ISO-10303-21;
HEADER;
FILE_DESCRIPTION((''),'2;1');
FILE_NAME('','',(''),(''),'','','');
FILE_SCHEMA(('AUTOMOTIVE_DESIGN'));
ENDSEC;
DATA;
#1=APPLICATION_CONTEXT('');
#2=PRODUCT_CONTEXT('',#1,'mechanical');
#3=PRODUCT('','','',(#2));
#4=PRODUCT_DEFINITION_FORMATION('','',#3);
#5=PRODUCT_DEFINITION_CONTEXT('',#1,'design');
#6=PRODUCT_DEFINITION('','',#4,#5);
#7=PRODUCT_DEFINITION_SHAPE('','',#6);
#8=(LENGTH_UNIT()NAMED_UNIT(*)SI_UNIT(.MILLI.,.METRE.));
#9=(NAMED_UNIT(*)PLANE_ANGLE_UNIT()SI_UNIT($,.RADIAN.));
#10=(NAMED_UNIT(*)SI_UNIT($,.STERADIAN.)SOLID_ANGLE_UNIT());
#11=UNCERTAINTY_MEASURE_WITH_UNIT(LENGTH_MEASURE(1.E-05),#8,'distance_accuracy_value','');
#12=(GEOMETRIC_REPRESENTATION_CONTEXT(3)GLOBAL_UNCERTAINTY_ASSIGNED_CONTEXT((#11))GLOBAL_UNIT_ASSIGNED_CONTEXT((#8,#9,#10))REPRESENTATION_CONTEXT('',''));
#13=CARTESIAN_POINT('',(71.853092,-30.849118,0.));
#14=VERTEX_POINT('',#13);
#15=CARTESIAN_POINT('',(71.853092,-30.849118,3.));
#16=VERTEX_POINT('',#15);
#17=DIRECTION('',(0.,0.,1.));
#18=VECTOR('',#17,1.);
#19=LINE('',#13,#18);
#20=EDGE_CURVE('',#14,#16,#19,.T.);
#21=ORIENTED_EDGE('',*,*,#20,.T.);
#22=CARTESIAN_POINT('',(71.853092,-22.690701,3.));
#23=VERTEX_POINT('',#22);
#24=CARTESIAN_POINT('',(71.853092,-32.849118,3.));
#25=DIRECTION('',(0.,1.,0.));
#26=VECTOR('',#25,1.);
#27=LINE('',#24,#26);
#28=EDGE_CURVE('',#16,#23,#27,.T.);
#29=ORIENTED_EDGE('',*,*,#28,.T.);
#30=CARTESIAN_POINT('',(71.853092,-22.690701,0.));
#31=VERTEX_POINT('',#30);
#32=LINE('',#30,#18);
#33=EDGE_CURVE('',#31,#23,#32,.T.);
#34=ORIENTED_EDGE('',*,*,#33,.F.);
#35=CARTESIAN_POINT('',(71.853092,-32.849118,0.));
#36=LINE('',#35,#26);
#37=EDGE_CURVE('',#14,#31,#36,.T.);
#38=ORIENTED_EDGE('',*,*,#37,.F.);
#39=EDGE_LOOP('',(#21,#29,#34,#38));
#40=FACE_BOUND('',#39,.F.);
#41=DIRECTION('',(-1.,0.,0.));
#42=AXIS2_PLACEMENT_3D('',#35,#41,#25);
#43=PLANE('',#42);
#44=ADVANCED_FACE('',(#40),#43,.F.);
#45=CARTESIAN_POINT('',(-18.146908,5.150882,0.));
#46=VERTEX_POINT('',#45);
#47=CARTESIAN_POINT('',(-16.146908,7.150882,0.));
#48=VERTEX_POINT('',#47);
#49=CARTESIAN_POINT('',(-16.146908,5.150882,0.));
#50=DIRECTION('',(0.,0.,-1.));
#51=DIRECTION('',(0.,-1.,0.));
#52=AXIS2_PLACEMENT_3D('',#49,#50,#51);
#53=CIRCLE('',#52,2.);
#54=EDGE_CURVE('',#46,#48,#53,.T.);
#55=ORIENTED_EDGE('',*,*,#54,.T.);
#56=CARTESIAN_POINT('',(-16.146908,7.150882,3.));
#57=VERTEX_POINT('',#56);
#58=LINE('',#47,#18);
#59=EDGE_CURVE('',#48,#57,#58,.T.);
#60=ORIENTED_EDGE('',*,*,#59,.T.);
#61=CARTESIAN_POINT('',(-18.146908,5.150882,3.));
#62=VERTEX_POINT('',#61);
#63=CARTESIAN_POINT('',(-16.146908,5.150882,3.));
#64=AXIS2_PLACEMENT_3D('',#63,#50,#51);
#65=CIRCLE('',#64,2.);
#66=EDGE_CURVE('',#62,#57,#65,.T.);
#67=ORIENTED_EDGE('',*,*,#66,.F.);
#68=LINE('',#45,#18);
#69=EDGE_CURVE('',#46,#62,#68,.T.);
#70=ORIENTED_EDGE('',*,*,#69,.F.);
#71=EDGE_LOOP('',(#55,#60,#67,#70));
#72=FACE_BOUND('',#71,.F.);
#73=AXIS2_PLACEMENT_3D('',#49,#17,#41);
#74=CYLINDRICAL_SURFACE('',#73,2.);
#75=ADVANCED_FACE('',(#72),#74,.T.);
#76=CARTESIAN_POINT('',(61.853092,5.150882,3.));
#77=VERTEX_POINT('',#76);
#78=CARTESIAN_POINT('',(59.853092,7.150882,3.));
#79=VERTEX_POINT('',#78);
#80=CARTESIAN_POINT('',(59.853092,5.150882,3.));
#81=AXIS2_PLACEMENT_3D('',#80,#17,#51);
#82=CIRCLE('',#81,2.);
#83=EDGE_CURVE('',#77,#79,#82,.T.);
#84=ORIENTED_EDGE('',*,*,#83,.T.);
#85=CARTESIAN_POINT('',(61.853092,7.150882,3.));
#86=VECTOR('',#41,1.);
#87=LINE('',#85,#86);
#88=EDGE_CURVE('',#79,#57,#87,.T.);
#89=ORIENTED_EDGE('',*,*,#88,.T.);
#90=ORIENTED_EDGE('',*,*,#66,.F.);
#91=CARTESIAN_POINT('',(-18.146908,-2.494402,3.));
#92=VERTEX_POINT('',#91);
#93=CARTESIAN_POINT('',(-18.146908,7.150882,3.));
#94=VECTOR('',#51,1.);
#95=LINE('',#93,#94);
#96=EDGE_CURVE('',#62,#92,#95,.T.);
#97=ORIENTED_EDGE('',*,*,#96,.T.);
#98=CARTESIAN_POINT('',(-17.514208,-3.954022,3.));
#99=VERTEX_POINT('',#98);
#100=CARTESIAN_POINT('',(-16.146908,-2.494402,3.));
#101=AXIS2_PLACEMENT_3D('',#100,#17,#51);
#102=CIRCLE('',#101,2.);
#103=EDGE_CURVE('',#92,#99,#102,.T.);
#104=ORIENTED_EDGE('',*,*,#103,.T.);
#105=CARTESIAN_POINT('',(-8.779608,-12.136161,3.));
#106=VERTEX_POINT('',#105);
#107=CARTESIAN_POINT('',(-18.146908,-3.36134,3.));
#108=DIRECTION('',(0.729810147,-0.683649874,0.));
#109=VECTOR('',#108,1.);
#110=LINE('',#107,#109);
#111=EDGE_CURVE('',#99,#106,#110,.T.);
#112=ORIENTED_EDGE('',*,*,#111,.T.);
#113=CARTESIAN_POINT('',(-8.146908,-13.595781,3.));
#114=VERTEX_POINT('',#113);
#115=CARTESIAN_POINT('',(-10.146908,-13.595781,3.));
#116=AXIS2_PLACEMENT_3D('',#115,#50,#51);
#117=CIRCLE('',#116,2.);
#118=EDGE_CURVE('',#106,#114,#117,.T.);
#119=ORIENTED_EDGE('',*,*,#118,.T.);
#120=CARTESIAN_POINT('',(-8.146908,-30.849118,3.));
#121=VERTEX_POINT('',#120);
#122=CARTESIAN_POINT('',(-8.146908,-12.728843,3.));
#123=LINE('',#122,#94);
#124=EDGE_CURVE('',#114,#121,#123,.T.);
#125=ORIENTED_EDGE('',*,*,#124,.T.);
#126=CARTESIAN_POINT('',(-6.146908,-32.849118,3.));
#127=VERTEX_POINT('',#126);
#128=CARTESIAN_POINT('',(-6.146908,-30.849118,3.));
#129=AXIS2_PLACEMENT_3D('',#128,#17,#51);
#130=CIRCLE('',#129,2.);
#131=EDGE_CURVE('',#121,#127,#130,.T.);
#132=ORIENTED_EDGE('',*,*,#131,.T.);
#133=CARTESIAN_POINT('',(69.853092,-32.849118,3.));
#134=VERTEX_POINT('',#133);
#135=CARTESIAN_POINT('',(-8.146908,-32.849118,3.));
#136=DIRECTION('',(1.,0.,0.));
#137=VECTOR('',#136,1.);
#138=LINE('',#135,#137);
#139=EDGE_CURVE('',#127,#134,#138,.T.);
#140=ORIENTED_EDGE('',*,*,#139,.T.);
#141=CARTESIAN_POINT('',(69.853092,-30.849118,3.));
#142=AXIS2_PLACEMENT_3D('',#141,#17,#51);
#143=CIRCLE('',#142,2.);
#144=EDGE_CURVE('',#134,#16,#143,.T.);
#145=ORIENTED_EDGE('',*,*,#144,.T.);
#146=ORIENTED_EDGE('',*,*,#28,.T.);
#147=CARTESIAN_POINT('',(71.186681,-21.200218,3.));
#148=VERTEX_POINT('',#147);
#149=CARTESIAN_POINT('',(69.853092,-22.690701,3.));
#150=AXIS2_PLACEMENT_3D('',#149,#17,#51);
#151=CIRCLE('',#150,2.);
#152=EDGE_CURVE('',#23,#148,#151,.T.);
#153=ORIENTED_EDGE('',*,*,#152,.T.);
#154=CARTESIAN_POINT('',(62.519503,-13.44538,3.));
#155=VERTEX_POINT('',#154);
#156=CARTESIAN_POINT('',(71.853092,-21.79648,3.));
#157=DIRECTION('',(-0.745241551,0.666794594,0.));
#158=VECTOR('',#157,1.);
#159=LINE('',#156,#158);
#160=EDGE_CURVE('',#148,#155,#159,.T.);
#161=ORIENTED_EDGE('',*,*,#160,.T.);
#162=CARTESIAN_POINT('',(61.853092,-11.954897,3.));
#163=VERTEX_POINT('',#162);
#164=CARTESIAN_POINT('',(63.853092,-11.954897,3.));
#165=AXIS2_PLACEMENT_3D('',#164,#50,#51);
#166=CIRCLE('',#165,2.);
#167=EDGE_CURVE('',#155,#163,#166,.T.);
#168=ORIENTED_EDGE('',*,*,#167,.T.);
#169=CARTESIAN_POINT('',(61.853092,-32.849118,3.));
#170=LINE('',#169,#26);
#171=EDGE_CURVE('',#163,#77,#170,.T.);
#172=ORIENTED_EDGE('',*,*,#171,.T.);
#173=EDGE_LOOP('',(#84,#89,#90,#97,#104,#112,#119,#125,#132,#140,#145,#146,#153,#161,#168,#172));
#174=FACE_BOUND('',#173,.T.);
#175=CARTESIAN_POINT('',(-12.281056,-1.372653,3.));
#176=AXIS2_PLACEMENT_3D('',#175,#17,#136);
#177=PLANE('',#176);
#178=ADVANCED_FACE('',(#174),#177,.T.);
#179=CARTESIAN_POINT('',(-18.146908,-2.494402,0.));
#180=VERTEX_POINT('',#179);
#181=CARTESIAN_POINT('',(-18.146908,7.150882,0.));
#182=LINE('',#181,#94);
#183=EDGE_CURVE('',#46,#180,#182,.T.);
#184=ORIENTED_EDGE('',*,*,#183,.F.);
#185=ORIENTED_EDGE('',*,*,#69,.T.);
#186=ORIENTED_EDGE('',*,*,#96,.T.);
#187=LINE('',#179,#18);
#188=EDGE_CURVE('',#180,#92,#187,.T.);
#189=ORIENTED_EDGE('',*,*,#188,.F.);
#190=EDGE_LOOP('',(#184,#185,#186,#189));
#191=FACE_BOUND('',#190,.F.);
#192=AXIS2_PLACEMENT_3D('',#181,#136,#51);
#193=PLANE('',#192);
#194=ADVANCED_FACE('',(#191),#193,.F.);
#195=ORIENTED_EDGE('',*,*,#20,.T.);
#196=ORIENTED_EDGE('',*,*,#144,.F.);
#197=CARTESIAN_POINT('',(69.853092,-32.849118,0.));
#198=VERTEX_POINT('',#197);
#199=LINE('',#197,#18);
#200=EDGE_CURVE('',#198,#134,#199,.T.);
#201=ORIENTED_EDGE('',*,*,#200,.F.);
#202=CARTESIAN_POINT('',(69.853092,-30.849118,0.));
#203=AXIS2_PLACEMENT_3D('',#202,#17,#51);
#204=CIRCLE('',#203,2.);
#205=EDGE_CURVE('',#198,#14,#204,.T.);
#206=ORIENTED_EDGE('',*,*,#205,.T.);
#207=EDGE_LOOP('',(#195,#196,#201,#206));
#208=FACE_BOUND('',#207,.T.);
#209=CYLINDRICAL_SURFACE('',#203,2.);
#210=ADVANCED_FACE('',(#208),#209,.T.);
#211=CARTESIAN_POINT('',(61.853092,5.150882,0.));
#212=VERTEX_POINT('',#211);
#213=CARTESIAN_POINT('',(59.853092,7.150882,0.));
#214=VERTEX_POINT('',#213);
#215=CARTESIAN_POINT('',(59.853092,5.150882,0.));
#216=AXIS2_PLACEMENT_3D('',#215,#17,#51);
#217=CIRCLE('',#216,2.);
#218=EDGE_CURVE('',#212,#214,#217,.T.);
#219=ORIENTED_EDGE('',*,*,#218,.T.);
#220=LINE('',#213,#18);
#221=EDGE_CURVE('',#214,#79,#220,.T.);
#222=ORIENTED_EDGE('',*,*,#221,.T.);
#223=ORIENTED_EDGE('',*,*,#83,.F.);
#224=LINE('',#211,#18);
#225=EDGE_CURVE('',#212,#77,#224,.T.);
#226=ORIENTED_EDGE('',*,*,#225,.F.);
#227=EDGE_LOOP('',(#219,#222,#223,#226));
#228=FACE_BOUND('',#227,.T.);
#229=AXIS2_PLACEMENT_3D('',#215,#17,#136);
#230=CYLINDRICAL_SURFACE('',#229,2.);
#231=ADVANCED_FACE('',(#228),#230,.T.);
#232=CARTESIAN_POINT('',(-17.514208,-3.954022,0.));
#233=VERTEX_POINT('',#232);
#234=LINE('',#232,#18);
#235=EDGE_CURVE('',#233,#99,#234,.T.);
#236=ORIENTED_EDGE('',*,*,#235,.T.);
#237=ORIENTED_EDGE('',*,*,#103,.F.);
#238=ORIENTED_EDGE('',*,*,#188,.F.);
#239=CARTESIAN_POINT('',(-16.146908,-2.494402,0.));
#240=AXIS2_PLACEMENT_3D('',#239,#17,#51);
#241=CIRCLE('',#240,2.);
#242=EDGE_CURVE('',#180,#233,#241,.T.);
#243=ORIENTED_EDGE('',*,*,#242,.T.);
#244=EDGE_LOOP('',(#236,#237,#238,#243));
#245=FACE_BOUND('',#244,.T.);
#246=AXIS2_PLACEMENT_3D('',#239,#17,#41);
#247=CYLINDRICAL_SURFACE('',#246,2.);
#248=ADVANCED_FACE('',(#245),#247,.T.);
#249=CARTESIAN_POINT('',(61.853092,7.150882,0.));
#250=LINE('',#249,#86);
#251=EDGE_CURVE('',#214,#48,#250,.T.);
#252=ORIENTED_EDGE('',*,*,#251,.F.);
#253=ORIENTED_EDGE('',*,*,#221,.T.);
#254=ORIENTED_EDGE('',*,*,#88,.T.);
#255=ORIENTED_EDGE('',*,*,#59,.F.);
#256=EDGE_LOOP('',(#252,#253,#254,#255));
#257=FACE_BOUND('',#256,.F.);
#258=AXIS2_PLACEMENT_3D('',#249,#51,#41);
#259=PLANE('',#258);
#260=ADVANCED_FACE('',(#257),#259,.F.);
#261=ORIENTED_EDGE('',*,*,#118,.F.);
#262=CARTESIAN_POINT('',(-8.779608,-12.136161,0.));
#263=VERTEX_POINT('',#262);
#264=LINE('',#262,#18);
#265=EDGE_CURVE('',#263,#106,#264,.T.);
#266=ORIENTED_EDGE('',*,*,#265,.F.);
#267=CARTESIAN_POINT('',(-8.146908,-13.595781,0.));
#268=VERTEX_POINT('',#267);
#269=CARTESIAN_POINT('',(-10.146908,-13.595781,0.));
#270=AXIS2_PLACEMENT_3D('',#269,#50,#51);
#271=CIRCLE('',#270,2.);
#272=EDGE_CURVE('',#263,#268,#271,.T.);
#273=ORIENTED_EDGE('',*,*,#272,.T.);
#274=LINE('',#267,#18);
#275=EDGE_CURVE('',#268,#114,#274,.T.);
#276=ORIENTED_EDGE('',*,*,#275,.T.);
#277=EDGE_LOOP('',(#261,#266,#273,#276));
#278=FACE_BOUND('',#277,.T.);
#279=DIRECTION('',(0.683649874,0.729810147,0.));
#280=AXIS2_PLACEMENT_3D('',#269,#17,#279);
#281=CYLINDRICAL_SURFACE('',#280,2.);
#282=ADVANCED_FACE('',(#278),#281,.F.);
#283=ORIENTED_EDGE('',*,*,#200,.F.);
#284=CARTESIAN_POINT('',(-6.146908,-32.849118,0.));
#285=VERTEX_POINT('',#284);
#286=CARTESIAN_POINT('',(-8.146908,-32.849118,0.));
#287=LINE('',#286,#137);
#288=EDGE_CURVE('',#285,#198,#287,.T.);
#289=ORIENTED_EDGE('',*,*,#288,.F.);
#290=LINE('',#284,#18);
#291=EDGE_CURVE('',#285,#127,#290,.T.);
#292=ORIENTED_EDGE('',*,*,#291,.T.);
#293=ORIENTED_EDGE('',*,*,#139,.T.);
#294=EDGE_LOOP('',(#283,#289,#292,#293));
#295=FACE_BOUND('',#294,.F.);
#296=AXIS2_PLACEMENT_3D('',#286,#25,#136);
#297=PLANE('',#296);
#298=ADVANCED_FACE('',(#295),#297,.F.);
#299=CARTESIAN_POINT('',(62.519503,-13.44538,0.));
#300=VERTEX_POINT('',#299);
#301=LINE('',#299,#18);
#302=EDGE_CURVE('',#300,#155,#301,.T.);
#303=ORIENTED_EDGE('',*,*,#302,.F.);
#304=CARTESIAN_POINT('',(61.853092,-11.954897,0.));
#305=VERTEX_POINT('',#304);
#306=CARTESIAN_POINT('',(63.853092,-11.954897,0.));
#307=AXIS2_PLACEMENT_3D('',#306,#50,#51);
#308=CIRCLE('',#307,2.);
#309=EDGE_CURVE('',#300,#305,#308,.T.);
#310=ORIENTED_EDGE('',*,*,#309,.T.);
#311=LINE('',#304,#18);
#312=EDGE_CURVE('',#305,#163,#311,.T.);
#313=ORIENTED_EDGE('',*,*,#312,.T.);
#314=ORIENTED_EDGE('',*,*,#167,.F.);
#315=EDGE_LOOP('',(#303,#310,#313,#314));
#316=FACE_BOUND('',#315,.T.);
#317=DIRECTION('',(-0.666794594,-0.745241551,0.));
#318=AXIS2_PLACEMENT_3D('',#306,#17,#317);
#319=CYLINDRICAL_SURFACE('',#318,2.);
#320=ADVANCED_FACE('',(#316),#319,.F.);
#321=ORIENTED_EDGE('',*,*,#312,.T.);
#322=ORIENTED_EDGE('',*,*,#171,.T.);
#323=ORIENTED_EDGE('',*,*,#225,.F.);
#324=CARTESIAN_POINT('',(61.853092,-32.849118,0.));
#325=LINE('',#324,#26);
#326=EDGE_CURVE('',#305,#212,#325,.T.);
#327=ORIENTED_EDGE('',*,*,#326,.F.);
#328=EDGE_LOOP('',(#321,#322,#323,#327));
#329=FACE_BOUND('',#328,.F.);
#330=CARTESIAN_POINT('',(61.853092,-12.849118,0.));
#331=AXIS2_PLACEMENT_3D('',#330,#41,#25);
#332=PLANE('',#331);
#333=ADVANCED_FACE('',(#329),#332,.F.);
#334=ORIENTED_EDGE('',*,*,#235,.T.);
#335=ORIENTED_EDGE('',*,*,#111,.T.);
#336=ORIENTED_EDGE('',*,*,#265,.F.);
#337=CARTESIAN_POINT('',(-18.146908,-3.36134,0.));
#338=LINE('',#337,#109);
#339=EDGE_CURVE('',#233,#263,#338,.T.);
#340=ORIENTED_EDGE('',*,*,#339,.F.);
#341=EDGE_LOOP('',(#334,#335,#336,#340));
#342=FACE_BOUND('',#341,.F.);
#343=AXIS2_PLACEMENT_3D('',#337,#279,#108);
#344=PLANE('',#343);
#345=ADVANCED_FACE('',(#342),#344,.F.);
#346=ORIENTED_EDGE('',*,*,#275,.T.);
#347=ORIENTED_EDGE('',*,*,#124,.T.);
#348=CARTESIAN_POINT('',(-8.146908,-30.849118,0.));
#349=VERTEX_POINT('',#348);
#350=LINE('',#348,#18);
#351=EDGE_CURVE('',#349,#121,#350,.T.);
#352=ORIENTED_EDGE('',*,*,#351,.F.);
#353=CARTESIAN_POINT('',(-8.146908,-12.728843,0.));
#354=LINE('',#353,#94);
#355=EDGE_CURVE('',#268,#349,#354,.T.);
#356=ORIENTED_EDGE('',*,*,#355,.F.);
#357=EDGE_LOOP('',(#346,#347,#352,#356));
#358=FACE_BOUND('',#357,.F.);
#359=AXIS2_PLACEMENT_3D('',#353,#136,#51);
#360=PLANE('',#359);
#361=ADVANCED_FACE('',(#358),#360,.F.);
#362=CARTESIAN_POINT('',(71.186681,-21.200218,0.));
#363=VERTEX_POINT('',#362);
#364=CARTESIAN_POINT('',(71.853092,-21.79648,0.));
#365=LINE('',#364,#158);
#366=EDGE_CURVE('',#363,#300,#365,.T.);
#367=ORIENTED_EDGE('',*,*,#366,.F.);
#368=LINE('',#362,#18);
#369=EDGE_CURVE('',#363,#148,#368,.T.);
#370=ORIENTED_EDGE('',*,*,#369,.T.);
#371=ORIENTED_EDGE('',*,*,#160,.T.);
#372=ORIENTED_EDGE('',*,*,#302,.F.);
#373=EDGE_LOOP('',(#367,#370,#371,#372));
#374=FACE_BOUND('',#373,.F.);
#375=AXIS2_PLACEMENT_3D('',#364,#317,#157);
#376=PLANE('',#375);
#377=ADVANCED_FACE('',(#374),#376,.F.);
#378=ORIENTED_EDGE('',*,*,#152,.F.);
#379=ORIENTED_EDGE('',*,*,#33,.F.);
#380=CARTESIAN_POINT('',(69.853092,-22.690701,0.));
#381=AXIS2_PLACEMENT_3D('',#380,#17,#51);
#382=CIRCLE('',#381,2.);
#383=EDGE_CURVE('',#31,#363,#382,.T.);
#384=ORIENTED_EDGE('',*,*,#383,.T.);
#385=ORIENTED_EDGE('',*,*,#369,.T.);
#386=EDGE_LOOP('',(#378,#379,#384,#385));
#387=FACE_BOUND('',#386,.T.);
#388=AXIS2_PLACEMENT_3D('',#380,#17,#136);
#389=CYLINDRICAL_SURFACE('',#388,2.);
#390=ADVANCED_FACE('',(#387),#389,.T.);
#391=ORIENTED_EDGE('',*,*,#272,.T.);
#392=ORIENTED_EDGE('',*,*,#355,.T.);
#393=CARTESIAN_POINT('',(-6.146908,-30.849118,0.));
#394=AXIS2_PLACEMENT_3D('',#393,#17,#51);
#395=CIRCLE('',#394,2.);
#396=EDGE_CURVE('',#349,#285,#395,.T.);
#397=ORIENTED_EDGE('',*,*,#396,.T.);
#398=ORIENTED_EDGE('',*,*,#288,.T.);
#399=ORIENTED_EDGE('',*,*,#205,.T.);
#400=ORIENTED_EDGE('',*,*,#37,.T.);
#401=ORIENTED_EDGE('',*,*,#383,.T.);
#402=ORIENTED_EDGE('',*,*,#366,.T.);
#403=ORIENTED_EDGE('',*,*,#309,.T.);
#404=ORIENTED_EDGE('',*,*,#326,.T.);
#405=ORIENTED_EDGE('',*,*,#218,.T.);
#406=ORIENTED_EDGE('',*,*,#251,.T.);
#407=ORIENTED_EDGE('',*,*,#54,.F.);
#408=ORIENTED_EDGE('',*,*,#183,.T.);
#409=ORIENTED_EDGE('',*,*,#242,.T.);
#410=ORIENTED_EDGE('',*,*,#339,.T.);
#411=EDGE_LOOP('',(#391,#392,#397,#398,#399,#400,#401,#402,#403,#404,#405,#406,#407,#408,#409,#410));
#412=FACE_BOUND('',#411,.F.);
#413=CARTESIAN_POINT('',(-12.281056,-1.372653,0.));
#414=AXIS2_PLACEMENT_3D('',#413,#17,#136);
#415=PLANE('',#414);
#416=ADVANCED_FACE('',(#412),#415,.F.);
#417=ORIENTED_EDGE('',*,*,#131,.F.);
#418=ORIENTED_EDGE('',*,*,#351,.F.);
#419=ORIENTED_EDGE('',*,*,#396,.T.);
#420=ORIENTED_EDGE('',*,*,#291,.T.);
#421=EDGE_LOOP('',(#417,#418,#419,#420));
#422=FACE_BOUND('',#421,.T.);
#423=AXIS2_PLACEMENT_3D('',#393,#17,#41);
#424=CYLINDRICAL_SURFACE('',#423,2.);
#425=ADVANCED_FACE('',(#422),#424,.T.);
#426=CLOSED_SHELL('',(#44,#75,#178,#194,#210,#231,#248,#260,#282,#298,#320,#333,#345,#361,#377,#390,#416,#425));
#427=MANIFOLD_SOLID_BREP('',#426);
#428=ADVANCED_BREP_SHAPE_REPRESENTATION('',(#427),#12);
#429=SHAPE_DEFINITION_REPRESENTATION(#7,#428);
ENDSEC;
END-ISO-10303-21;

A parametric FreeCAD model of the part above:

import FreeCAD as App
import Part
import Sketcher
from FreeCAD import Vector
Q = App.Units.Quantity


def edges_at(feature, points):
    """Names of the edges that pass closest to the given points."""
    edges = feature.Shape.Edges
    near = lambda p: min(range(len(edges)), key=lambda i: edges[i].distToShape(Part.Vertex(*p))[0])
    return sorted({f"Edge{near(p) + 1}" for p in points})


def add_polygon(sketch, points):
    """Adds a closed chain of lines whose ends are joined by coincident constraints."""
    first, n = sketch.GeometryCount, len(points)
    for a, b in zip(points, points[1:] + points[:1]):
        sketch.addGeometry(Part.LineSegment(App.Vector(*a, 0), App.Vector(*b, 0)), False)
    for i in range(n):
        sketch.addConstraint(Sketcher.Constraint("Coincident", first + i, 2, first + (i + 1) % n, 1))

doc = App.newDocument("Part")
body = doc.addObject("PartDesign::Body", "Body")

sketch1 = body.newObject("Sketcher::SketchObject", "Sketch")
sketch1.AttachmentSupport = (doc.getObject("XY_Plane"), [""])
sketch1.MapMode = "FlatFace"
add_polygon(sketch1, [(-18.146908, 7.150882), (-18.146908, -3.36134), (-8.146908, -12.728843), (-8.146908, -32.849118), (71.853092, -32.849118), (71.853092, -21.79648), (61.853092, -12.849118), (61.853092, 7.150882)])
sketch1.addConstraint([
    Sketcher.Constraint("Vertical", 0),
    Sketcher.Constraint("Vertical", 2),
    Sketcher.Constraint("Horizontal", 3),
    Sketcher.Constraint("Vertical", 4),
    Sketcher.Constraint("Vertical", 6),
    Sketcher.Constraint("Horizontal", 7),
    Sketcher.Constraint("Equal", 3, 7),
    Sketcher.Constraint("DistanceX", 3, 1, 3, 2, Q("80 mm")),
    Sketcher.Constraint("DistanceY", 6, 1, 6, 2, Q("20 mm")),
    Sketcher.Constraint("DistanceX", 0, 2, 1, 2, Q("10 mm")),
    Sketcher.Constraint("DistanceY", 3, 2, 5, 2, Q("20 mm")),
    Sketcher.Constraint("Distance", 5, Q("13.418468 mm")),
    Sketcher.Constraint("DistanceY", 0, 2, 0, 1, Q("10.512222 mm")),
    Sketcher.Constraint("DistanceY", 2, 2, 2, 1, Q("20.120275 mm")),
    Sketcher.Constraint("DistanceX", 0, 2, -1, 1, Q("18.146908 mm")),
    Sketcher.Constraint("DistanceY", 0, 2, -1, 1, Q("3.36134 mm")),
])
pad1 = body.newObject("PartDesign::Pad", "Pad")
pad1.Profile = sketch1
pad1.Length = 3
doc.recompute()

fillet = body.newObject("PartDesign::Fillet", "Fillet")
fillet.Base = (pad1, edges_at(pad1, [
    (-18.147, 7.151, 1.5),
    (-18.147, -3.361, 1.5),
    (-8.147, -12.729, 1.5),
    (-8.147, -32.849, 1.5),
    (71.853, -32.849, 1.5),
    (71.853, -21.796, 1.5),
    (61.853, -12.849, 1.5),
    (61.853, 7.151, 1.5),
]))
fillet.Radius = 2

doc.recompute()
